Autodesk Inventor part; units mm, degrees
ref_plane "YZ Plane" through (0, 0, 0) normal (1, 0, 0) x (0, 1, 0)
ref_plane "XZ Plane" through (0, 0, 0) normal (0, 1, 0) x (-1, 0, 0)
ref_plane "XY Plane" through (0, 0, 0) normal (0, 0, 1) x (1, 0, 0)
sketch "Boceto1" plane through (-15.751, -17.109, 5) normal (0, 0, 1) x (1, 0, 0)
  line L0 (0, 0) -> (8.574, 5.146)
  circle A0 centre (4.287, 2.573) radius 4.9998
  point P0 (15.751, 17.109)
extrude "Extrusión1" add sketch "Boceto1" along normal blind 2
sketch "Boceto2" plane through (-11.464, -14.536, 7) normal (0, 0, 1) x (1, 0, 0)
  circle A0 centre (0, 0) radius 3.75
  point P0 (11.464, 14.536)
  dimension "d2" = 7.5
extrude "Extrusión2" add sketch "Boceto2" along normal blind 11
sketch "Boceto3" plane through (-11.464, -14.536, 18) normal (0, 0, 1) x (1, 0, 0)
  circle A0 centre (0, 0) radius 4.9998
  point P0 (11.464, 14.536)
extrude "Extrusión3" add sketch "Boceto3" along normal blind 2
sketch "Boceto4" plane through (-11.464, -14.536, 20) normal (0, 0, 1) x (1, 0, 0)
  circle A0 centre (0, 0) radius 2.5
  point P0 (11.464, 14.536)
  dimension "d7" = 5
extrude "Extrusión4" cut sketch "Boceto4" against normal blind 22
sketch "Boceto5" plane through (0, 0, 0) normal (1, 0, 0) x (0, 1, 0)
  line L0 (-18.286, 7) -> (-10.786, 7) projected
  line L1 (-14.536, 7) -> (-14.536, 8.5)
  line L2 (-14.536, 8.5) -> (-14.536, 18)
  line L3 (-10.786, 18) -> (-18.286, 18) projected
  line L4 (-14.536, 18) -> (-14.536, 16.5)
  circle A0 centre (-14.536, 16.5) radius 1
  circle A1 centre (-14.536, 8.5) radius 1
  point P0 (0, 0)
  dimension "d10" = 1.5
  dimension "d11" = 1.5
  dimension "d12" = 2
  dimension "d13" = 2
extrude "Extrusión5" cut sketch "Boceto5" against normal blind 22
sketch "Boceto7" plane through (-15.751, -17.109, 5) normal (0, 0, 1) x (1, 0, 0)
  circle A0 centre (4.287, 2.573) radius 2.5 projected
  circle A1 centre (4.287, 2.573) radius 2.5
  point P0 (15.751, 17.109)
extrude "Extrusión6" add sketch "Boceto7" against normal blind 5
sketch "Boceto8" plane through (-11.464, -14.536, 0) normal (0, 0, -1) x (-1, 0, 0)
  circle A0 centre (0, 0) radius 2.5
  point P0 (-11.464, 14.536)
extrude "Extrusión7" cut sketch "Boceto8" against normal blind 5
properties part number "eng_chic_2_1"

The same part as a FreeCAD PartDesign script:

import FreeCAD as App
import Part
import Sketcher

V = App.Vector

doc = App.newDocument("Part")
params = doc.addObject("Spreadsheet::Sheet", "Params")
for row, (alias, value) in enumerate([
    ("pad1_length", "2 mm"),
    ("sketch2_diameter", "7.5 mm"),
    ("pad2_length", "11 mm"),
    ("pad3_length", "2 mm"),
    ("sketch4_diameter", "5 mm"),
    ("pocket1_length", "22 mm"),
    ("sketch5_diameter", "2 mm"),
    ("pocket2_length", "22 mm"),
    ("sketch6_diameter", "5 mm"),
    ("pad4_length", "5 mm"),
    ("sketch7_diameter", "5 mm"),
    ("pocket3_length", "5 mm"),
], start=1):
    params.set(f"A{row}", alias)
    params.set(f"B{row}", "=" + value)
    params.setAlias(f"B{row}", alias)

body = doc.addObject("PartDesign::Body", "Body")
body.AllowCompound = True

# Sketch on XY plane
sketch1 = body.newObject("Sketcher::SketchObject", "Sketch")
sketch1.AttachmentSupport = (doc.getObject("XY_Plane"), [""])
sketch1.MapMode = "FlatFace"
sketch1.AttachmentOffset = App.Placement(V(0, 0, 5), App.Rotation())
sketch1.addGeometry(Part.Circle(V(-11.464, -14.536, 0), V(0, 0, 1), 4.9998), False)
sketch1.addConstraint(Sketcher.Constraint("Diameter", 0, 9.9996))
sketch1.addConstraint(Sketcher.Constraint("DistanceX", 0, 3, -1, 1, 11.464))
sketch1.addConstraint(Sketcher.Constraint("DistanceY", 0, 3, -1, 1, 14.536))
pad1 = body.newObject("PartDesign::Pad", "Pad")
pad1.Profile = sketch1
pad1.setExpression("Length", "Params.pad1_length")

# Sketch on XY plane
sketch2 = body.newObject("Sketcher::SketchObject", "Sketch001")
sketch2.AttachmentSupport = (doc.getObject("XY_Plane"), [""])
sketch2.MapMode = "FlatFace"
sketch2.AttachmentOffset = App.Placement(V(0, 0, 7), App.Rotation())
sketch2.addGeometry(Part.Circle(V(-11.464, -14.536, 0), V(0, 0, 1), 3.75), False)
sketch2.addConstraint(Sketcher.Constraint("Diameter", 0, 7.5))
sketch2.addConstraint(Sketcher.Constraint("DistanceX", 0, 3, -1, 1, 11.464))
sketch2.addConstraint(Sketcher.Constraint("DistanceY", 0, 3, -1, 1, 14.536))
sketch2.setExpression("Constraints[0]", "Params.sketch2_diameter")
pad2 = body.newObject("PartDesign::Pad", "Pad001")
pad2.Profile = sketch2
pad2.setExpression("Length", "Params.pad2_length")

# Sketch on XY plane
sketch3 = body.newObject("Sketcher::SketchObject", "Sketch002")
sketch3.AttachmentSupport = (doc.getObject("XY_Plane"), [""])
sketch3.MapMode = "FlatFace"
sketch3.AttachmentOffset = App.Placement(V(0, 0, 18), App.Rotation())
sketch3.addGeometry(Part.Circle(V(-11.464, -14.536, 0), V(0, 0, 1), 4.9998), False)
sketch3.addConstraint(Sketcher.Constraint("Diameter", 0, 9.9996))
sketch3.addConstraint(Sketcher.Constraint("DistanceX", 0, 3, -1, 1, 11.464))
sketch3.addConstraint(Sketcher.Constraint("DistanceY", 0, 3, -1, 1, 14.536))
pad3 = body.newObject("PartDesign::Pad", "Pad002")
pad3.Profile = sketch3
pad3.setExpression("Length", "Params.pad3_length")

# Sketch on XY plane
sketch4 = body.newObject("Sketcher::SketchObject", "Sketch003")
sketch4.AttachmentSupport = (doc.getObject("XY_Plane"), [""])
sketch4.MapMode = "FlatFace"
sketch4.AttachmentOffset = App.Placement(V(0, 0, 20), App.Rotation())
sketch4.addGeometry(Part.Circle(V(-11.464, -14.536, 0), V(0, 0, 1), 2.5), False)
sketch4.addConstraint(Sketcher.Constraint("Diameter", 0, 5.0))
sketch4.addConstraint(Sketcher.Constraint("DistanceX", 0, 3, -1, 1, 11.464))
sketch4.addConstraint(Sketcher.Constraint("DistanceY", 0, 3, -1, 1, 14.536))
sketch4.setExpression("Constraints[0]", "Params.sketch4_diameter")
pocket1 = body.newObject("PartDesign::Pocket", "Pocket")
pocket1.Profile = sketch4
pocket1.setExpression("Length", "Params.pocket1_length")

# Sketch on YZ plane
sketch5 = body.newObject("Sketcher::SketchObject", "Sketch004")
sketch5.AttachmentSupport = (doc.getObject("YZ_Plane"), [""])
sketch5.MapMode = "FlatFace"
sketch5.addGeometry(Part.Circle(V(-14.536, 8.5, 0), V(0, 0, 1), 1), False)
sketch5.addGeometry(Part.Circle(V(-14.536, 16.5, 0), V(0, 0, 1), 1), False)
sketch5.addConstraint(Sketcher.Constraint("Equal", 0, 1))
sketch5.addConstraint(Sketcher.Constraint("Vertical", 0, 3, 1, 3))
sketch5.addConstraint(Sketcher.Constraint("Diameter", 0, 2.0))
sketch5.addConstraint(Sketcher.Constraint("DistanceY", 0, 3, 1, 3, 8.0))
sketch5.addConstraint(Sketcher.Constraint("DistanceY", -1, 1, 0, 3, 8.5))
sketch5.addConstraint(Sketcher.Constraint("DistanceX", 0, 3, -1, 1, 14.536))
sketch5.setExpression("Constraints[2]", "Params.sketch5_diameter")
pocket2 = body.newObject("PartDesign::Pocket", "Pocket001")
pocket2.Profile = sketch5
pocket2.setExpression("Length", "Params.pocket2_length")

# Sketch on XY plane
sketch6 = body.newObject("Sketcher::SketchObject", "Sketch005")
sketch6.AttachmentSupport = (doc.getObject("XY_Plane"), [""])
sketch6.MapMode = "FlatFace"
sketch6.AttachmentOffset = App.Placement(V(0, 0, 5), App.Rotation())
sketch6.addGeometry(Part.Circle(V(-11.464, -14.536, 0), V(0, 0, 1), 2.5), False)
sketch6.addConstraint(Sketcher.Constraint("Diameter", 0, 5.0))
sketch6.addConstraint(Sketcher.Constraint("DistanceX", 0, 3, -1, 1, 11.464))
sketch6.addConstraint(Sketcher.Constraint("DistanceY", 0, 3, -1, 1, 14.536))
sketch6.setExpression("Constraints[0]", "Params.sketch6_diameter")
pad4 = body.newObject("PartDesign::Pad", "Pad003")
pad4.Profile = sketch6
pad4.setExpression("Length", "Params.pad4_length")
pad4.Reversed = True

# Sketch on XY plane
sketch7 = body.newObject("Sketcher::SketchObject", "Sketch006")
sketch7.AttachmentSupport = (doc.getObject("XY_Plane"), [""])
sketch7.MapMode = "FlatFace"
sketch7.addGeometry(Part.Circle(V(-11.464, -14.536, 0), V(0, 0, 1), 2.5), False)
sketch7.addConstraint(Sketcher.Constraint("Diameter", 0, 5.0))
sketch7.addConstraint(Sketcher.Constraint("DistanceX", 0, 3, -1, 1, 11.464))
sketch7.addConstraint(Sketcher.Constraint("DistanceY", 0, 3, -1, 1, 14.536))
sketch7.setExpression("Constraints[0]", "Params.sketch7_diameter")
pocket3 = body.newObject("PartDesign::Pocket", "Pocket002")
pocket3.Profile = sketch7
pocket3.setExpression("Length", "Params.pocket3_length")
pocket3.Reversed = True

doc.recompute()
